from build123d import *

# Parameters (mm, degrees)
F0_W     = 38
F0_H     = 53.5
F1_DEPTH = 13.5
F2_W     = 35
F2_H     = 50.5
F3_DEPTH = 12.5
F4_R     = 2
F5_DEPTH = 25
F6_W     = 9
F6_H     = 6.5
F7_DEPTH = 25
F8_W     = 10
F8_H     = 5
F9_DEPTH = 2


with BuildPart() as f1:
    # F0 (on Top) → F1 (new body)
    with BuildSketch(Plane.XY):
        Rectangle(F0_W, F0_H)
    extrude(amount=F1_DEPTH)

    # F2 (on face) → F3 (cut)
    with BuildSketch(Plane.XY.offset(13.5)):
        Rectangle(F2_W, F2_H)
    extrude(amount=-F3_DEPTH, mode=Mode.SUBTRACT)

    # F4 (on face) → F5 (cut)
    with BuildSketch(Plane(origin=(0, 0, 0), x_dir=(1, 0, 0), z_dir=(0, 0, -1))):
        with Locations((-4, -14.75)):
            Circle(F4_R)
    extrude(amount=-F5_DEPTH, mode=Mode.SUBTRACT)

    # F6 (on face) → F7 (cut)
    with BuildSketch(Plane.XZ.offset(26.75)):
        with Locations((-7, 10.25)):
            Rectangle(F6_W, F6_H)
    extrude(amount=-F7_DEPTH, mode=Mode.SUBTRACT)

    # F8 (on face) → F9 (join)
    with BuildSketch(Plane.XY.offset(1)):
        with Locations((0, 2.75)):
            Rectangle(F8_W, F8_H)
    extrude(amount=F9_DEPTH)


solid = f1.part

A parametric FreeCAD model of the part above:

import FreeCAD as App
import Part
import Sketcher
Q = App.Units.Quantity


def add_polygon(sketch, points):
    """Adds a closed chain of lines whose ends are joined by coincident constraints."""
    first, n = sketch.GeometryCount, len(points)
    for a, b in zip(points, points[1:] + points[:1]):
        sketch.addGeometry(Part.LineSegment(App.Vector(*a, 0), App.Vector(*b, 0)), False)
    for i in range(n):
        sketch.addConstraint(Sketcher.Constraint("Coincident", first + i, 2, first + (i + 1) % n, 1))

doc = App.newDocument("Part")
params = doc.addObject("Spreadsheet::Sheet", "Params")
for row, (alias, value) in enumerate([
    ("sketch1_width", "38 mm"),
    ("sketch1_height", "53.5 mm"),
    ("pad1_length", "13.5 mm"),
    ("sketch2_width", "35 mm"),
    ("sketch2_height", "50.5 mm"),
    ("pocket1_length", "12.5 mm"),
    ("sketch3_diameter", "4 mm"),
    ("pocket2_length", "25 mm"),
    ("sketch4_width", "9 mm"),
    ("sketch4_height", "6.5 mm"),
    ("pocket3_length", "25 mm"),
    ("sketch5_width", "10 mm"),
    ("sketch5_height", "5 mm"),
    ("pad2_length", "2 mm"),
], start=1):
    params.set(f"A{row}", alias)
    params.set(f"B{row}", "=" + value)
    params.setAlias(f"B{row}", alias)

body = doc.addObject("PartDesign::Body", "Body")

sketch1 = body.newObject("Sketcher::SketchObject", "Sketch")
sketch1.AttachmentSupport = (doc.getObject("XY_Plane"), [""])
sketch1.MapMode = "FlatFace"
add_polygon(sketch1, [(-19, 26.75), (-19, -26.75), (19, -26.75), (19, 26.75)])
sketch1.addConstraint([
    Sketcher.Constraint("Vertical", 0),
    Sketcher.Constraint("Horizontal", 1),
    Sketcher.Constraint("Vertical", 2),
    Sketcher.Constraint("Horizontal", 3),
    Sketcher.Constraint("Symmetric", 0, 2, 2, 2, -1, 1),
    Sketcher.Constraint("DistanceX", 1, 1, 1, 2, Q("38 mm")),
    Sketcher.Constraint("DistanceY", 0, 2, 0, 1, Q("53.5 mm")),
])
sketch1.setExpression("Constraints[9]", "Params.sketch1_width")
sketch1.setExpression("Constraints[10]", "Params.sketch1_height")
pad1 = body.newObject("PartDesign::Pad", "Pad")
pad1.Profile = sketch1
pad1.setExpression("Length", "Params.pad1_length")

sketch2 = body.newObject("Sketcher::SketchObject", "Sketch001")
sketch2.AttachmentSupport = (doc.getObject("XY_Plane"), [""])
sketch2.MapMode = "FlatFace"
sketch2.AttachmentOffset = App.Placement(App.Vector(0, 0, 13.5), App.Rotation())
add_polygon(sketch2, [(-17.5, 25.25), (-17.5, -25.25), (17.5, -25.25), (17.5, 25.25)])
sketch2.addConstraint([
    Sketcher.Constraint("Vertical", 0),
    Sketcher.Constraint("Horizontal", 1),
    Sketcher.Constraint("Vertical", 2),
    Sketcher.Constraint("Horizontal", 3),
    Sketcher.Constraint("Symmetric", 0, 2, 2, 2, -1, 1),
    Sketcher.Constraint("DistanceX", 1, 1, 1, 2, Q("35 mm")),
    Sketcher.Constraint("DistanceY", 0, 2, 0, 1, Q("50.5 mm")),
])
sketch2.setExpression("Constraints[9]", "Params.sketch2_width")
sketch2.setExpression("Constraints[10]", "Params.sketch2_height")
pocket1 = body.newObject("PartDesign::Pocket", "Pocket")
pocket1.Profile = sketch2
pocket1.setExpression("Length", "Params.pocket1_length")

sketch3 = body.newObject("Sketcher::SketchObject", "Sketch002")
sketch3.AttachmentSupport = (doc.getObject("XY_Plane"), [""])
sketch3.MapMode = "FlatFace"
sketch3.addGeometry(Part.Circle(App.Vector(-4, 14.75, 0), App.Vector(0, 0, 1), 2), False)
sketch3.addConstraint([
    Sketcher.Constraint("Diameter", 0, Q("4 mm")),
    Sketcher.Constraint("DistanceX", 0, 3, -1, 1, Q("4 mm")),
    Sketcher.Constraint("DistanceY", -1, 1, 0, 3, Q("14.75 mm")),
])
sketch3.setExpression("Constraints[0]", "Params.sketch3_diameter")
pocket2 = body.newObject("PartDesign::Pocket", "Pocket001")
pocket2.Profile = sketch3
pocket2.setExpression("Length", "Params.pocket2_length")
pocket2.Reversed = True

sketch4 = body.newObject("Sketcher::SketchObject", "Sketch003")
sketch4.AttachmentSupport = (doc.getObject("XZ_Plane"), [""])
sketch4.MapMode = "FlatFace"
sketch4.AttachmentOffset = App.Placement(App.Vector(0, 0, 26.75), App.Rotation())
add_polygon(sketch4, [(-11.5, 13.5), (-11.5, 7), (-2.5, 7), (-2.5, 13.5)])
sketch4.addConstraint([
    Sketcher.Constraint("Vertical", 0),
    Sketcher.Constraint("Horizontal", 1),
    Sketcher.Constraint("Vertical", 2),
    Sketcher.Constraint("Horizontal", 3),
    Sketcher.Constraint("DistanceX", 1, 1, 1, 2, Q("9 mm")),
    Sketcher.Constraint("DistanceY", 0, 2, 0, 1, Q("6.5 mm")),
    Sketcher.Constraint("DistanceY", -1, 1, 0, 2, Q("7 mm")),
    Sketcher.Constraint("DistanceX", 0, 2, -1, 1, Q("11.5 mm")),
])
sketch4.setExpression("Constraints[8]", "Params.sketch4_width")
sketch4.setExpression("Constraints[9]", "Params.sketch4_height")
pocket3 = body.newObject("PartDesign::Pocket", "Pocket002")
pocket3.Profile = sketch4
pocket3.setExpression("Length", "Params.pocket3_length")

sketch5 = body.newObject("Sketcher::SketchObject", "Sketch004")
sketch5.AttachmentSupport = (doc.getObject("XY_Plane"), [""])
sketch5.MapMode = "FlatFace"
sketch5.AttachmentOffset = App.Placement(App.Vector(0, 0, 1), App.Rotation())
add_polygon(sketch5, [(-5, 5.25), (-5, 0.25), (5, 0.25), (5, 5.25)])
sketch5.addConstraint([
    Sketcher.Constraint("Vertical", 0),
    Sketcher.Constraint("Horizontal", 1),
    Sketcher.Constraint("Vertical", 2),
    Sketcher.Constraint("Horizontal", 3),
    Sketcher.Constraint("DistanceX", 1, 1, 1, 2, Q("10 mm")),
    Sketcher.Constraint("DistanceY", 0, 2, 0, 1, Q("5 mm")),
    Sketcher.Constraint("DistanceX", 0, 2, -1, 1, Q("5 mm")),
    Sketcher.Constraint("DistanceY", -1, 1, 0, 2, Q("0.25 mm")),
])
sketch5.setExpression("Constraints[8]", "Params.sketch5_width")
sketch5.setExpression("Constraints[9]", "Params.sketch5_height")
pad2 = body.newObject("PartDesign::Pad", "Pad001")
pad2.Profile = sketch5
pad2.setExpression("Length", "Params.pad2_length")

doc.recompute()
